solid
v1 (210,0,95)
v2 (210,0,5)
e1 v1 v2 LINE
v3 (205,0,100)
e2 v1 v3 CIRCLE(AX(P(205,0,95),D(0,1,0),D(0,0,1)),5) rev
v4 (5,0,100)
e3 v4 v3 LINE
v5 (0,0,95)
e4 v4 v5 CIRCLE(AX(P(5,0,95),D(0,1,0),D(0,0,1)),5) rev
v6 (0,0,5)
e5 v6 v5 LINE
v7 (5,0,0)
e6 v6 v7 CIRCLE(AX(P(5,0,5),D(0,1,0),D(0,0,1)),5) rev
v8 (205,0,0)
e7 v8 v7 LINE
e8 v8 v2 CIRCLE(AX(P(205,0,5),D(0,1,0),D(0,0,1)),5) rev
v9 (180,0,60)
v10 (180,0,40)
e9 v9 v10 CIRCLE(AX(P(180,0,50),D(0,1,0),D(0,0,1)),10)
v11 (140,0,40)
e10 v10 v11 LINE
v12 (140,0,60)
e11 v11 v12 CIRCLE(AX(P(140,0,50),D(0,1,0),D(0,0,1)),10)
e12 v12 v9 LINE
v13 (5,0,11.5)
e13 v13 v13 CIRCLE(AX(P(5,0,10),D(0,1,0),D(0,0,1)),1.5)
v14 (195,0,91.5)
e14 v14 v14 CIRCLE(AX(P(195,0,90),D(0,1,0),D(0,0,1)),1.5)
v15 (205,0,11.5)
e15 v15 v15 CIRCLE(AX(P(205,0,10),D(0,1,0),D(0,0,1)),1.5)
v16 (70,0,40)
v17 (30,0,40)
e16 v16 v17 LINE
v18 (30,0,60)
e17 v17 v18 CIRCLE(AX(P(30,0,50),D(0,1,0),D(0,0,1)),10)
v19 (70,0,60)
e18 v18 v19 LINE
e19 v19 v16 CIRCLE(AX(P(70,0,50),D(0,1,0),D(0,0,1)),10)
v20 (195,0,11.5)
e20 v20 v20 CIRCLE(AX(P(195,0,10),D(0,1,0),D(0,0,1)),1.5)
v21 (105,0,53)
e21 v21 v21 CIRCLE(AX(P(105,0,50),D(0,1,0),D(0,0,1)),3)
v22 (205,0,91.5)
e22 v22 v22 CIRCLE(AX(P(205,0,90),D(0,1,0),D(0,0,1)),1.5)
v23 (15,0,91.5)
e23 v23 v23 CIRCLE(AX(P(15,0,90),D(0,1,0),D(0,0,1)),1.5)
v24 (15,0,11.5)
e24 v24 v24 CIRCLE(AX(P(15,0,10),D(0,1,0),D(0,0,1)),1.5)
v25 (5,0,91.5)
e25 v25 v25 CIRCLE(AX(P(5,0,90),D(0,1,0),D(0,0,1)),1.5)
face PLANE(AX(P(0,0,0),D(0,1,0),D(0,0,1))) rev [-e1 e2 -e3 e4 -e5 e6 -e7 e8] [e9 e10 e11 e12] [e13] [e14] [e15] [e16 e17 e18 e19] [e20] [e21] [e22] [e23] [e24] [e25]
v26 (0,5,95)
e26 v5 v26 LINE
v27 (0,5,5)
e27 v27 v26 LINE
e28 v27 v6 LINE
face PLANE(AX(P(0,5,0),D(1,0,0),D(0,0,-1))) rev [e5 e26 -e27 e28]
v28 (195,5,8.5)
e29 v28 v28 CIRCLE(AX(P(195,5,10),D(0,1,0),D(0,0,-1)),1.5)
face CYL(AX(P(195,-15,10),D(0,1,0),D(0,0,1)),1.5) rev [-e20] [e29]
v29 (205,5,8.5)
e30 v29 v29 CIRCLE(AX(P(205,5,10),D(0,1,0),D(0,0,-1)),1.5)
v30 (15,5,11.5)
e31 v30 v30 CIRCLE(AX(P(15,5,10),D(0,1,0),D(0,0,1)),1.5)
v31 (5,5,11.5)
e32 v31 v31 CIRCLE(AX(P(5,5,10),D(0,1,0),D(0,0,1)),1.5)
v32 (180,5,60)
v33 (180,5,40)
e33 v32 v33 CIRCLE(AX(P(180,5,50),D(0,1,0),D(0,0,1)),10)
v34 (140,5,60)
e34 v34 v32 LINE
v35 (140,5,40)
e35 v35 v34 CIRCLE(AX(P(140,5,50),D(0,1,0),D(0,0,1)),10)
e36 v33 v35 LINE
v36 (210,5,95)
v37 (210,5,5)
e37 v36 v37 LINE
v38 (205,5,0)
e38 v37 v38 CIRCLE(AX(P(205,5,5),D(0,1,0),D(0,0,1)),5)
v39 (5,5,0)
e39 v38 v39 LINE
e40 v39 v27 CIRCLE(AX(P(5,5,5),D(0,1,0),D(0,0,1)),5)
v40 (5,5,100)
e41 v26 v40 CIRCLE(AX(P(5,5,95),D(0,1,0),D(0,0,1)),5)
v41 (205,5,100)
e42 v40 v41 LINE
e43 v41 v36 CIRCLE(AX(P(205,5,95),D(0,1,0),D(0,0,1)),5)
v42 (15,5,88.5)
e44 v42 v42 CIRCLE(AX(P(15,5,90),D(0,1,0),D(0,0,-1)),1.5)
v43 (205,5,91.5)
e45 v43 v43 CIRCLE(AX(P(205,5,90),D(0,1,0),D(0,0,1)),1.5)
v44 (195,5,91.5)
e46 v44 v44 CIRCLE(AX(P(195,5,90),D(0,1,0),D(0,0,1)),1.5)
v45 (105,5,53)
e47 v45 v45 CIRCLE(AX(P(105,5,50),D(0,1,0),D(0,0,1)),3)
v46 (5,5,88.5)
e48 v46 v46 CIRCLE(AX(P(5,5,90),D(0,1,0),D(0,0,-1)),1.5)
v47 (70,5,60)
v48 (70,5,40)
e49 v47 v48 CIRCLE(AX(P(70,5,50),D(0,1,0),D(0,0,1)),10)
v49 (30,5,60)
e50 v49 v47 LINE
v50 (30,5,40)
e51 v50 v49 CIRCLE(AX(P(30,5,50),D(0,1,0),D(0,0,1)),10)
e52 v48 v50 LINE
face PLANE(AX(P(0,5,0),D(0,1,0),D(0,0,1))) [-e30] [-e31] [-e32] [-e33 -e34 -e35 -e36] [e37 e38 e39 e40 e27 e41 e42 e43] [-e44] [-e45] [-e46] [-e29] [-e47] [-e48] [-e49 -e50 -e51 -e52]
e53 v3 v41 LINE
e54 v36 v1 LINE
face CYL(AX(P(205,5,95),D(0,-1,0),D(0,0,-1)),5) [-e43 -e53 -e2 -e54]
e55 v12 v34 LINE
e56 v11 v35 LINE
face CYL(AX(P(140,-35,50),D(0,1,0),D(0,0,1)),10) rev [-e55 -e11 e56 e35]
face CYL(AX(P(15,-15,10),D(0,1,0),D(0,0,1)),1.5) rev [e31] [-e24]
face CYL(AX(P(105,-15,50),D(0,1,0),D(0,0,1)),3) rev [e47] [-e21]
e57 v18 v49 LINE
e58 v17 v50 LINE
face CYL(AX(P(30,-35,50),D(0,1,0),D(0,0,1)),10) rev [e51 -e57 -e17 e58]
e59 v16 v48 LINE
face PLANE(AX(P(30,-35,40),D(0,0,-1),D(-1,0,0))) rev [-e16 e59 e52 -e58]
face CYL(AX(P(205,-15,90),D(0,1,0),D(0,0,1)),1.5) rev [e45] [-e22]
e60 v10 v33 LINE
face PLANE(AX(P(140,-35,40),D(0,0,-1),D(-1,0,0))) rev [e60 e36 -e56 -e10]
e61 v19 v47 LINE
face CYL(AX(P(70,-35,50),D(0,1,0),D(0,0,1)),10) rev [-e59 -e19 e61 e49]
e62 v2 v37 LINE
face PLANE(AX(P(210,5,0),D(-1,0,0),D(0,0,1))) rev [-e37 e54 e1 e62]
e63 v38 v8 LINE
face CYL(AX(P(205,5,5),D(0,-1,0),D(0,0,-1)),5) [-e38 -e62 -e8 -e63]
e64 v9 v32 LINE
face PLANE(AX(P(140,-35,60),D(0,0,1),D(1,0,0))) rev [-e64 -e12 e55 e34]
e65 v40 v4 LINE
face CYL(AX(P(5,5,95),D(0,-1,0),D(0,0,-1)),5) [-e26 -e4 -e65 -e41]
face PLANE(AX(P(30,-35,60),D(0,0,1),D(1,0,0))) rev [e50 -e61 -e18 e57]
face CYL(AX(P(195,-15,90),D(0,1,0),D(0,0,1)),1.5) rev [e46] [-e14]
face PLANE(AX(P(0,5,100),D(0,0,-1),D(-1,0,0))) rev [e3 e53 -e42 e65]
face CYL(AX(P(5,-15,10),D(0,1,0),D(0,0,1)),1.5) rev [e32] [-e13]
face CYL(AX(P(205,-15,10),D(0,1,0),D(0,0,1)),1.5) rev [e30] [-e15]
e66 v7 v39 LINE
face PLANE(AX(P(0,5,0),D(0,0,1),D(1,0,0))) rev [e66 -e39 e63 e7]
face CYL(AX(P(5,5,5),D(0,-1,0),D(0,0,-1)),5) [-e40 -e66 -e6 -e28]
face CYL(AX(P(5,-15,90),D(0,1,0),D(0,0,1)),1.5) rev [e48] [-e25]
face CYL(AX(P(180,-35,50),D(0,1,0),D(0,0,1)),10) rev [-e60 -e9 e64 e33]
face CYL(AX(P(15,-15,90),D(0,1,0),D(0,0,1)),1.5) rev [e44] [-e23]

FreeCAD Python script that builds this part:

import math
import FreeCAD as App
import Part
import Sketcher

V = App.Vector
Q = App.Units.Quantity


def edges_at(feature, points):
    """Names of the edges that pass closest to the given points."""
    edges = feature.Shape.Edges
    near = lambda p: min(range(len(edges)), key=lambda i: edges[i].distToShape(Part.Vertex(*p))[0])
    return sorted({f"Edge{near(p) + 1}" for p in points})


def add_polygon(sketch, points):
    """Adds a closed chain of lines whose ends are joined by coincident constraints."""
    first, n = sketch.GeometryCount, len(points)
    for a, b in zip(points, points[1:] + points[:1]):
        sketch.addGeometry(Part.LineSegment(App.Vector(*a, 0), App.Vector(*b, 0)), False)
    for i in range(n):
        sketch.addConstraint(Sketcher.Constraint("Coincident", first + i, 2, first + (i + 1) % n, 1))

doc = App.newDocument("Part")
params = doc.addObject("Spreadsheet::Sheet", "Params")
for row, (alias, value) in enumerate([
    ("sketch1_width", "210 mm"),
    ("sketch1_height", "100 mm"),
    ("pad1_length", "5 mm"),
    ("sketch2_radius", "10 mm"),
    ("sketch2_width", "40 mm"),
    ("pocket1_length", "40 mm"),
    ("sketch3_diameter", "6 mm"),
    ("pocket2_length", "20 mm"),
    ("sketch4_diameter", "3 mm"),
    ("pocket3_length", "20 mm"),
    ("fillet_radius", "5 mm"),
], start=1):
    params.set(f"A{row}", alias)
    params.set(f"B{row}", "=" + value)
    params.setAlias(f"B{row}", alias)

body = doc.addObject("PartDesign::Body", "Body")

sketch1 = body.newObject("Sketcher::SketchObject", "Sketch")
sketch1.AttachmentSupport = (doc.getObject("XZ_Plane"), [""])
sketch1.MapMode = "FlatFace"
add_polygon(sketch1, [(0, 0), (0, 100), (210, 100), (210, 0)])
sketch1.addConstraint(Sketcher.Constraint("Vertical", 0))
sketch1.addConstraint(Sketcher.Constraint("Horizontal", 1))
sketch1.addConstraint(Sketcher.Constraint("Vertical", 2))
sketch1.addConstraint(Sketcher.Constraint("Horizontal", 3))
sketch1.addConstraint(Sketcher.Constraint("Coincident", 3, 2, -1, 1))
sketch1.addConstraint(Sketcher.Constraint("DistanceX", 1, 1, 1, 2, Q("210 mm")))
sketch1.addConstraint(Sketcher.Constraint("DistanceY", 0, 1, 0, 2, Q("100 mm")))
sketch1.setExpression("Constraints[9]", "Params.sketch1_width")
sketch1.setExpression("Constraints[10]", "Params.sketch1_height")
pad1 = body.newObject("PartDesign::Pad", "Pad")
pad1.Profile = sketch1
pad1.setExpression("Length", "Params.pad1_length")
pad1.Reversed = True

sketch2 = body.newObject("Sketcher::SketchObject", "Sketch001")
sketch2.AttachmentSupport = (doc.getObject("XZ_Plane"), [""])
sketch2.MapMode = "FlatFace"
sketch2.AttachmentOffset = App.Placement(V(0, 0, -5), App.Rotation())
sketch2.addGeometry(Part.LineSegment(V(70, 40, 0), V(30, 40, 0)), False)
sketch2.addGeometry(Part.ArcOfCircle(Part.Circle(V(30, 50, 0), V(0, 0, 1), 10), math.radians(90), math.radians(270)), False)
sketch2.addGeometry(Part.LineSegment(V(30, 60, 0), V(70, 60, 0)), False)
sketch2.addGeometry(Part.ArcOfCircle(Part.Circle(V(70, 50, 0), V(0, 0, 1), 10), math.radians(-90), math.radians(90)), False)
sketch2.addGeometry(Part.LineSegment(V(180, 40, 0), V(140, 40, 0)), False)
sketch2.addGeometry(Part.ArcOfCircle(Part.Circle(V(140, 50, 0), V(0, 0, 1), 10), math.radians(90), math.radians(270)), False)
sketch2.addGeometry(Part.LineSegment(V(140, 60, 0), V(180, 60, 0)), False)
sketch2.addGeometry(Part.ArcOfCircle(Part.Circle(V(180, 50, 0), V(0, 0, 1), 10), math.radians(-90), math.radians(90)), False)
sketch2.addConstraint(Sketcher.Constraint("Tangent", 0, 2, 1, 2))
sketch2.addConstraint(Sketcher.Constraint("Tangent", 1, 1, 2, 1))
sketch2.addConstraint(Sketcher.Constraint("Tangent", 2, 2, 3, 2))
sketch2.addConstraint(Sketcher.Constraint("Tangent", 3, 1, 0, 1))
sketch2.addConstraint(Sketcher.Constraint("Tangent", 4, 2, 5, 2))
sketch2.addConstraint(Sketcher.Constraint("Tangent", 5, 1, 6, 1))
sketch2.addConstraint(Sketcher.Constraint("Tangent", 6, 2, 7, 2))
sketch2.addConstraint(Sketcher.Constraint("Tangent", 7, 1, 4, 1))
sketch2.addConstraint(Sketcher.Constraint("Horizontal", 0))
sketch2.addConstraint(Sketcher.Constraint("Horizontal", 2))
sketch2.addConstraint(Sketcher.Constraint("Horizontal", 4))
sketch2.addConstraint(Sketcher.Constraint("Horizontal", 6))
sketch2.addConstraint(Sketcher.Constraint("Equal", 3, 5))
sketch2.addConstraint(Sketcher.Constraint("Horizontal", 3, 3, 5, 3))
sketch2.addConstraint(Sketcher.Constraint("Equal", 2, 4))
sketch2.addConstraint(Sketcher.Constraint("Radius", 1, Q("10 mm")))
sketch2.addConstraint(Sketcher.Constraint("DistanceX", 0, 2, 0, 1, Q("40 mm")))
sketch2.addConstraint(Sketcher.Constraint("DistanceX", -1, 1, 1, 3, Q("30 mm")))
sketch2.addConstraint(Sketcher.Constraint("DistanceY", -1, 1, 1, 3, Q("50 mm")))
sketch2.addConstraint(Sketcher.Constraint("DistanceX", -1, 1, 5, 3, Q("140 mm")))
sketch2.setExpression("Constraints[15]", "Params.sketch2_radius")
sketch2.setExpression("Constraints[16]", "Params.sketch2_width")
pocket1 = body.newObject("PartDesign::Pocket", "Pocket")
pocket1.Profile = sketch2
pocket1.setExpression("Length", "Params.pocket1_length")
pocket1.Reversed = True

sketch3 = body.newObject("Sketcher::SketchObject", "Sketch002")
sketch3.AttachmentSupport = (doc.getObject("XZ_Plane"), [""])
sketch3.MapMode = "FlatFace"
sketch3.AttachmentOffset = App.Placement(V(0, 0, -5), App.Rotation())
sketch3.addGeometry(Part.Circle(V(105, 50, 0), V(0, 0, 1), 3), False)
sketch3.addConstraint(Sketcher.Constraint("Diameter", 0, Q("6 mm")))
sketch3.addConstraint(Sketcher.Constraint("DistanceX", -1, 1, 0, 3, Q("105 mm")))
sketch3.addConstraint(Sketcher.Constraint("DistanceY", -1, 1, 0, 3, Q("50 mm")))
sketch3.setExpression("Constraints[0]", "Params.sketch3_diameter")
pocket2 = body.newObject("PartDesign::Pocket", "Pocket001")
pocket2.Profile = sketch3
pocket2.setExpression("Length", "Params.pocket2_length")
pocket2.Reversed = True

sketch4 = body.newObject("Sketcher::SketchObject", "Sketch003")
sketch4.AttachmentSupport = (doc.getObject("XZ_Plane"), [""])
sketch4.MapMode = "FlatFace"
sketch4.AttachmentOffset = App.Placement(V(0, 0, -5), App.Rotation())
sketch4.addGeometry(Part.Circle(V(5, 10, 0), V(0, 0, 1), 1.5), False)
sketch4.addGeometry(Part.Circle(V(205, 10, 0), V(0, 0, 1), 1.5), False)
sketch4.addGeometry(Part.Circle(V(205, 90, 0), V(0, 0, 1), 1.5), False)
sketch4.addGeometry(Part.Circle(V(5, 90, 0), V(0, 0, 1), 1.5), False)
sketch4.addGeometry(Part.Circle(V(15, 10, 0), V(0, 0, 1), 1.5), False)
sketch4.addGeometry(Part.Circle(V(15, 90, 0), V(0, 0, 1), 1.5), False)
sketch4.addGeometry(Part.Circle(V(195, 90, 0), V(0, 0, 1), 1.5), False)
sketch4.addGeometry(Part.Circle(V(195, 10, 0), V(0, 0, 1), 1.5), False)
sketch4.addConstraint(Sketcher.Constraint("Equal", 0, 1))
sketch4.addConstraint(Sketcher.Constraint("Equal", 1, 2))
sketch4.addConstraint(Sketcher.Constraint("Equal", 2, 3))
sketch4.addConstraint(Sketcher.Constraint("Equal", 3, 4))
sketch4.addConstraint(Sketcher.Constraint("Equal", 4, 5))
sketch4.addConstraint(Sketcher.Constraint("Equal", 5, 6))
sketch4.addConstraint(Sketcher.Constraint("Equal", 6, 7))
sketch4.addConstraint(Sketcher.Constraint("Horizontal", 0, 3, 1, 3))
sketch4.addConstraint(Sketcher.Constraint("Horizontal", 2, 3, 3, 3))
sketch4.addConstraint(Sketcher.Constraint("Horizontal", 1, 3, 4, 3))
sketch4.addConstraint(Sketcher.Constraint("Horizontal", 3, 3, 5, 3))
sketch4.addConstraint(Sketcher.Constraint("Horizontal", 5, 3, 6, 3))
sketch4.addConstraint(Sketcher.Constraint("Horizontal", 4, 3, 7, 3))
sketch4.addConstraint(Sketcher.Constraint("Vertical", 1, 3, 2, 3))
sketch4.addConstraint(Sketcher.Constraint("Vertical", 0, 3, 3, 3))
sketch4.addConstraint(Sketcher.Constraint("Vertical", 4, 3, 5, 3))
sketch4.addConstraint(Sketcher.Constraint("Vertical", 6, 3, 7, 3))
sketch4.addConstraint(Sketcher.Constraint("Diameter", 0, Q("3 mm")))
sketch4.addConstraint(Sketcher.Constraint("DistanceX", -1, 1, 0, 3, Q("5 mm")))
sketch4.addConstraint(Sketcher.Constraint("DistanceY", -1, 1, 0, 3, Q("10 mm")))
sketch4.addConstraint(Sketcher.Constraint("DistanceX", -1, 1, 1, 3, Q("205 mm")))
sketch4.addConstraint(Sketcher.Constraint("DistanceY", -1, 1, 2, 3, Q("90 mm")))
sketch4.addConstraint(Sketcher.Constraint("DistanceX", -1, 1, 4, 3, Q("15 mm")))
sketch4.addConstraint(Sketcher.Constraint("DistanceX", -1, 1, 6, 3, Q("195 mm")))
sketch4.setExpression("Constraints[17]", "Params.sketch4_diameter")
pocket3 = body.newObject("PartDesign::Pocket", "Pocket002")
pocket3.Profile = sketch4
pocket3.setExpression("Length", "Params.pocket3_length")
pocket3.Reversed = True
doc.recompute()

fillet = body.newObject("PartDesign::Fillet", "Fillet")
fillet.Base = (pocket3, edges_at(pocket3, [
    (0, 2.5, 0),
    (210, 2.5, 0),
    (210, 2.5, 100),
    (0, 2.5, 100),
]))
fillet.setExpression("Radius", "Params.fillet_radius")

doc.recompute()
